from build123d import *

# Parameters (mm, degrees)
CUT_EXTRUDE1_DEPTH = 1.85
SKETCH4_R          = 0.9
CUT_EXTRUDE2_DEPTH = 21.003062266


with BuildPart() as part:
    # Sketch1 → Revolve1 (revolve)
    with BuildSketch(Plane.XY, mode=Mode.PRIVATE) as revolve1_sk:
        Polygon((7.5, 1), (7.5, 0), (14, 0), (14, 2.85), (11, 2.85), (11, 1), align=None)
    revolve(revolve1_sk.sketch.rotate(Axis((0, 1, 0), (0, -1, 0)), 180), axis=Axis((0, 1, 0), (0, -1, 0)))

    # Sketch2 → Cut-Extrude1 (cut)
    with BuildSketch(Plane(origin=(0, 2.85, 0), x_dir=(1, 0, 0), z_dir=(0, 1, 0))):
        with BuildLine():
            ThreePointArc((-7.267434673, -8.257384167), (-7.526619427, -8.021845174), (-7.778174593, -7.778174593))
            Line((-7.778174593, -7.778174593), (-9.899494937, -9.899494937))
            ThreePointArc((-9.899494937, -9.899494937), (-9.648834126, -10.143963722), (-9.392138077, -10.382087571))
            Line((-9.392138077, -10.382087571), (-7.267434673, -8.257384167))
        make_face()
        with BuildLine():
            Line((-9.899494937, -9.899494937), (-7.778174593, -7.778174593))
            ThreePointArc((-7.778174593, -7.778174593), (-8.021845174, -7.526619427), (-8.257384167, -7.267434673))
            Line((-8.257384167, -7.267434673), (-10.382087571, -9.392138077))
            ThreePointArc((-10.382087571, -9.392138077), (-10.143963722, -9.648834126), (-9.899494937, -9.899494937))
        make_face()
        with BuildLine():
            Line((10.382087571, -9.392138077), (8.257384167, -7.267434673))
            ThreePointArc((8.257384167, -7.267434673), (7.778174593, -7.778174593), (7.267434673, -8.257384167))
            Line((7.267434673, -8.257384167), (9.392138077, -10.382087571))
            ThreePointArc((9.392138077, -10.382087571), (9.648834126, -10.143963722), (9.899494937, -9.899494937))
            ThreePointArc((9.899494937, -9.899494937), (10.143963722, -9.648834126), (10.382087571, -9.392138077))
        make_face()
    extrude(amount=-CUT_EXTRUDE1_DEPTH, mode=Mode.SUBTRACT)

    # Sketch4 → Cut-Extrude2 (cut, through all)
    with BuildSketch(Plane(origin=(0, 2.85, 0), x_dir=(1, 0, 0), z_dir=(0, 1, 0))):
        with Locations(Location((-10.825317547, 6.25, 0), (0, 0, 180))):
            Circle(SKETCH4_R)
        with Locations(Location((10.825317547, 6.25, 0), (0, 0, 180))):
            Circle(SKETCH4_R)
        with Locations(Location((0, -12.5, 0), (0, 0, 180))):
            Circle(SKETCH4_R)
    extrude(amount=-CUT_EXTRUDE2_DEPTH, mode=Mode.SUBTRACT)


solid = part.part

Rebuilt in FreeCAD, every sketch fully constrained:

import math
import FreeCAD as App
import Part
import Sketcher

doc = App.newDocument("Part")
body = doc.addObject("PartDesign::Body", "Body")

sketch1 = doc.addObject("Sketcher::SketchObject", "Sketch")
body.addObject(sketch1)
sketch1.AttachmentSupport = (doc.XY_Plane, [""])
sketch1.MapMode = "FlatFace"
sketch1.addGeometry([
    Part.LineSegment(App.Vector(7.5, 1, 0), App.Vector(7.5, 0, 0)),
    Part.LineSegment(App.Vector(7.5, 0, 0), App.Vector(14, 0, 0)),
    Part.LineSegment(App.Vector(14, 0, 0), App.Vector(14, 2.85, 0)),
    Part.LineSegment(App.Vector(14, 2.85, 0), App.Vector(11, 2.85, 0)),
    Part.LineSegment(App.Vector(11, 2.85, 0), App.Vector(11, 1, 0)),
    Part.LineSegment(App.Vector(11, 1, 0), App.Vector(7.5, 1, 0)),
], False)
sketch1.addConstraint([
    Sketcher.Constraint("Coincident", 0, 2, 1, 1),
    Sketcher.Constraint("Coincident", 1, 2, 2, 1),
    Sketcher.Constraint("Coincident", 2, 2, 3, 1),
    Sketcher.Constraint("Coincident", 3, 2, 4, 1),
    Sketcher.Constraint("Coincident", 4, 2, 5, 1),
    Sketcher.Constraint("Coincident", 5, 2, 0, 1),
    Sketcher.Constraint("Vertical", 0),
    Sketcher.Constraint("Horizontal", 1),
    Sketcher.Constraint("Vertical", 2),
    Sketcher.Constraint("Horizontal", 3),
    Sketcher.Constraint("Vertical", 4),
    Sketcher.Constraint("Horizontal", 5),
    Sketcher.Constraint("PointOnObject", 0, 2, -1),
    Sketcher.Constraint("DistanceX", 3, 2, 3, 1, 3.0),
    Sketcher.Constraint("DistanceY", 0, 2, 0, 1, 1.0),
    Sketcher.Constraint("DistanceX", 1, 1, 1, 2, 6.5),
    Sketcher.Constraint("DistanceX", -1, 1, 1, 2, 14.0),
    Sketcher.Constraint("DistanceY", 2, 1, 2, 2, 2.85),
])
revolution = doc.addObject("PartDesign::Revolution", "Revolution")
body.addObject(revolution)
revolution.Profile = sketch1
revolution.ReferenceAxis = (sketch1, ["V_Axis"])
revolution.Angle = 360

sketch2 = doc.addObject("Sketcher::SketchObject", "Sketch001")
body.addObject(sketch2)
sketch2.AttachmentSupport = (doc.XZ_Plane, [""])
sketch2.MapMode = "FlatFace"
sketch2.AttachmentOffset = App.Placement(App.Vector(0, 0, -2.85), App.Rotation())
sketch2.addGeometry([
    Part.ArcOfCircle(Part.Circle(App.Vector(0.000001, -0.000001, 0), App.Vector(0, 0, 1), 11.000001), math.radians(131.35144), math.radians(135)),
    Part.ArcOfCircle(Part.Circle(App.Vector(0.000001, -0.000001, 0), App.Vector(0, 0, 1), 11.000001), math.radians(135), math.radians(138.64856)),
    Part.LineSegment(App.Vector(-8.257384, 7.267435, 0), App.Vector(-10.382088, 9.392138, 0)),
    Part.ArcOfCircle(Part.Circle(App.Vector(0.000002, -0.000001, 0), App.Vector(0, 0, 1), 14.000002), math.radians(135), math.radians(137.865984)),
    Part.ArcOfCircle(Part.Circle(App.Vector(0.000001, -0.000002, 0), App.Vector(0, 0, 1), 14.000002), math.radians(132.134016), math.radians(135)),
    Part.LineSegment(App.Vector(-9.392138, 10.382088, 0), App.Vector(-7.267435, 8.257384, 0)),
    Part.LineSegment(App.Vector(10.382088, 9.392138, 0), App.Vector(8.257384, 7.267435, 0)),
    Part.ArcOfCircle(Part.Circle(App.Vector(0, 0, 0), App.Vector(0, 0, 1), 11), math.radians(41.35144), math.radians(48.64856)),
    Part.LineSegment(App.Vector(7.267435, 8.257384, 0), App.Vector(9.392138, 10.382088, 0)),
    Part.ArcOfCircle(Part.Circle(App.Vector(-0.000001, -0.000002, 0), App.Vector(0, 0, 1), 14.000002), math.radians(45), math.radians(47.865984)),
    Part.ArcOfCircle(Part.Circle(App.Vector(-0.000002, -0.000001, 0), App.Vector(0, 0, 1), 14.000002), math.radians(42.134016), math.radians(45)),
], False)
sketch2.addConstraint([
    Sketcher.Constraint("Tangent", 0, 2, 1, 1),
    Sketcher.Constraint("Coincident", 1, 2, 2, 1),
    Sketcher.Constraint("Coincident", 2, 2, 3, 2),
    Sketcher.Constraint("Tangent", 3, 1, 4, 2),
    Sketcher.Constraint("Coincident", 4, 1, 5, 1),
    Sketcher.Constraint("Coincident", 5, 2, 0, 1),
    Sketcher.Constraint("Coincident", 6, 2, 7, 1),
    Sketcher.Constraint("Coincident", 7, 2, 8, 1),
    Sketcher.Constraint("Coincident", 8, 2, 9, 2),
    Sketcher.Constraint("Tangent", 9, 1, 10, 2),
    Sketcher.Constraint("Coincident", 10, 1, 6, 1),
    Sketcher.Constraint("Coincident", 0, 3, -1, 1),
    Sketcher.Constraint("Coincident", 3, 3, -1, 1),
    Sketcher.Constraint("Coincident", 7, 3, -1, 1),
    Sketcher.Constraint("Coincident", 9, 3, -1, 1),
    Sketcher.Constraint("Equal", 0, 1),
    Sketcher.Constraint("Equal", 3, 4),
    Sketcher.Constraint("Equal", 1, 7),
    Sketcher.Constraint("Equal", 4, 9),
    Sketcher.Constraint("Equal", 9, 10),
    Sketcher.Constraint("Parallel", 2, 5),
    Sketcher.Constraint("Perpendicular", 5, 6),
    Sketcher.Constraint("Parallel", 6, 8),
    Sketcher.Constraint("Horizontal", 1, 2, 6, 2),
    Sketcher.Constraint("Horizontal", 5, 2, 7, 2),
    Sketcher.Constraint("Horizontal", 4, 1, 8, 2),
    Sketcher.Constraint("Horizontal", 3, 1, 9, 1),
    Sketcher.Constraint("Equal", 2, 5),
    Sketcher.Constraint("Radius", 0, 11.000001),
    Sketcher.Constraint("Radius", 3, 14.000002),
    Sketcher.Constraint("DistanceY", -1, 1, 2, 2, 9.392138),
    Sketcher.Constraint("DistanceX", 1, 2, 0, 2, 0.47921),
    Sketcher.Constraint("DistanceX", 3, 1, 0, 2, 2.12132),
])
pocket1 = doc.addObject("PartDesign::Pocket", "Pocket")
body.addObject(pocket1)
pocket1.Profile = sketch2
pocket1.Length = 1.85
pocket1.Reversed = True

sketch3 = doc.addObject("Sketcher::SketchObject", "Sketch002")
body.addObject(sketch3)
sketch3.AttachmentSupport = (doc.XZ_Plane, [""])
sketch3.MapMode = "FlatFace"
sketch3.AttachmentOffset = App.Placement(App.Vector(0, 0, -2.85), App.Rotation())
sketch3.addGeometry([
    Part.Circle(App.Vector(-10.825318, -6.25, 0), App.Vector(0, 0, 1), 0.9),
    Part.Circle(App.Vector(10.825318, -6.25, 0), App.Vector(0, 0, 1), 0.9),
    Part.Circle(App.Vector(0, 12.5, 0), App.Vector(0, 0, 1), 0.9),
], False)
sketch3.addConstraint([
    Sketcher.Constraint("Equal", 0, 1),
    Sketcher.Constraint("Equal", 1, 2),
    Sketcher.Constraint("Symmetric", 0, 3, 1, 3, -2),
    Sketcher.Constraint("PointOnObject", 2, 3, -2),
    Sketcher.Constraint("Diameter", 0, 1.8),
    Sketcher.Constraint("DistanceY", -1, 1, 2, 3, 12.5),
    Sketcher.Constraint("DistanceY", 0, 3, -1, 1, 6.25),
    Sketcher.Constraint("DistanceX", 0, 3, -1, 1, 10.825318),
])
pocket2 = doc.addObject("PartDesign::Pocket", "Pocket001")
body.addObject(pocket2)
pocket2.Profile = sketch3
pocket2.Type = "ThroughAll"
pocket2.Reversed = True

doc.recompute()
